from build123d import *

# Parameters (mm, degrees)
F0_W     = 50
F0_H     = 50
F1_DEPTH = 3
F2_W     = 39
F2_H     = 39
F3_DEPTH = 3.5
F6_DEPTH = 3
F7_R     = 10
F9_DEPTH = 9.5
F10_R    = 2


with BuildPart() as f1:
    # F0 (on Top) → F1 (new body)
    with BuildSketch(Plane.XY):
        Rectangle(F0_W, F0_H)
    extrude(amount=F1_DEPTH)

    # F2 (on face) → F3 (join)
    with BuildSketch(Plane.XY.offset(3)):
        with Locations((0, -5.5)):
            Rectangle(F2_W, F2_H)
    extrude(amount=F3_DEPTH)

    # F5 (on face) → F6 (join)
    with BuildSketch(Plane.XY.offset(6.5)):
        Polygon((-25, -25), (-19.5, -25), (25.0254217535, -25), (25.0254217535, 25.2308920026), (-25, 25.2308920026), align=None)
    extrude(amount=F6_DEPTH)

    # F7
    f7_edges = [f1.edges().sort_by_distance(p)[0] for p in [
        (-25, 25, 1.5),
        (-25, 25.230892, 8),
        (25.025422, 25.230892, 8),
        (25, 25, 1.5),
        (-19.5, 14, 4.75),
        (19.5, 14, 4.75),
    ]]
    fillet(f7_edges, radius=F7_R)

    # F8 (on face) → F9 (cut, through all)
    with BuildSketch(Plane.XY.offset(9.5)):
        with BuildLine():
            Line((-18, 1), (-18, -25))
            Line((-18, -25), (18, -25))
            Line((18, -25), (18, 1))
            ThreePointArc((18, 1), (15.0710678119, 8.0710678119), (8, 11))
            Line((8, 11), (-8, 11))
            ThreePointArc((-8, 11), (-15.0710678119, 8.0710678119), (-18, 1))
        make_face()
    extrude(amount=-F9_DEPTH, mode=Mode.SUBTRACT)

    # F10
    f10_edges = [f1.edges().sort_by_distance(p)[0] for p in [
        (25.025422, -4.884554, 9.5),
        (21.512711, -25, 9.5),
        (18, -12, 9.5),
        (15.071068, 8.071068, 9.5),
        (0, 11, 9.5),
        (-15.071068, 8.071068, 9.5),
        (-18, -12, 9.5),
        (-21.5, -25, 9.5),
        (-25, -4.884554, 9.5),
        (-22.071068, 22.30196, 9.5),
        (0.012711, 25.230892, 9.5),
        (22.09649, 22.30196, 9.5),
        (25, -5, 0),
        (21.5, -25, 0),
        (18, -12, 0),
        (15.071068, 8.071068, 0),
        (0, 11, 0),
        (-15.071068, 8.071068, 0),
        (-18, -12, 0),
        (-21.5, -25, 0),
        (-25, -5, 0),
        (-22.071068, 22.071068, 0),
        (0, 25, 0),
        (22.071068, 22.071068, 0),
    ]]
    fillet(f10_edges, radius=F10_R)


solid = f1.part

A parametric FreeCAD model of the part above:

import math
import FreeCAD as App
import Part
import Sketcher

V = App.Vector


def edges_at(feature, points):
    """Names of the edges that pass closest to the given points."""
    edges = feature.Shape.Edges
    near = lambda p: min(range(len(edges)), key=lambda i: edges[i].distToShape(Part.Vertex(*p))[0])
    return sorted({f"Edge{near(p) + 1}" for p in points})

doc = App.newDocument("Part")
body = doc.addObject("PartDesign::Body", "Body")

sketch1 = body.newObject("Sketcher::SketchObject", "Sketch")
sketch1.AttachmentSupport = (doc.getObject("XY_Plane"), [""])
sketch1.MapMode = "FlatFace"
sketch1.addGeometry(Part.LineSegment(V(-25, 25, 0), V(-25, -25, 0)), False)
sketch1.addGeometry(Part.LineSegment(V(-25, -25, 0), V(25, -25, 0)), False)
sketch1.addGeometry(Part.LineSegment(V(25, -25, 0), V(25, 25, 0)), False)
sketch1.addGeometry(Part.LineSegment(V(25, 25, 0), V(-25, 25, 0)), False)
sketch1.addConstraint(Sketcher.Constraint("Coincident", 0, 2, 1, 1))
sketch1.addConstraint(Sketcher.Constraint("Coincident", 1, 2, 2, 1))
sketch1.addConstraint(Sketcher.Constraint("Coincident", 2, 2, 3, 1))
sketch1.addConstraint(Sketcher.Constraint("Coincident", 3, 2, 0, 1))
sketch1.addConstraint(Sketcher.Constraint("Vertical", 0))
sketch1.addConstraint(Sketcher.Constraint("Horizontal", 1))
sketch1.addConstraint(Sketcher.Constraint("Vertical", 2))
sketch1.addConstraint(Sketcher.Constraint("Horizontal", 3))
sketch1.addConstraint(Sketcher.Constraint("Symmetric", 0, 2, 2, 2, -1, 1))
sketch1.addConstraint(Sketcher.Constraint("Equal", 3, 0))
sketch1.addConstraint(Sketcher.Constraint("DistanceX", 1, 1, 1, 2, 50.0))
pad1 = body.newObject("PartDesign::Pad", "Pad")
pad1.Profile = sketch1
pad1.Length = 3

sketch2 = body.newObject("Sketcher::SketchObject", "Sketch001")
sketch2.AttachmentSupport = (doc.getObject("XY_Plane"), [""])
sketch2.MapMode = "FlatFace"
sketch2.AttachmentOffset = App.Placement(V(0, 0, 3), App.Rotation())
sketch2.addGeometry(Part.LineSegment(V(-19.5, 14, 0), V(-19.5, -25, 0)), False)
sketch2.addGeometry(Part.LineSegment(V(-19.5, -25, 0), V(19.5, -25, 0)), False)
sketch2.addGeometry(Part.LineSegment(V(19.5, -25, 0), V(19.5, 14, 0)), False)
sketch2.addGeometry(Part.LineSegment(V(19.5, 14, 0), V(-19.5, 14, 0)), False)
sketch2.addConstraint(Sketcher.Constraint("Coincident", 0, 2, 1, 1))
sketch2.addConstraint(Sketcher.Constraint("Coincident", 1, 2, 2, 1))
sketch2.addConstraint(Sketcher.Constraint("Coincident", 2, 2, 3, 1))
sketch2.addConstraint(Sketcher.Constraint("Coincident", 3, 2, 0, 1))
sketch2.addConstraint(Sketcher.Constraint("Vertical", 0))
sketch2.addConstraint(Sketcher.Constraint("Horizontal", 1))
sketch2.addConstraint(Sketcher.Constraint("Vertical", 2))
sketch2.addConstraint(Sketcher.Constraint("Horizontal", 3))
sketch2.addConstraint(Sketcher.Constraint("Equal", 3, 0))
sketch2.addConstraint(Sketcher.Constraint("DistanceX", 1, 1, 1, 2, 39.0))
sketch2.addConstraint(Sketcher.Constraint("DistanceY", 0, 2, -1, 1, 25.0))
sketch2.addConstraint(Sketcher.Constraint("DistanceX", 0, 2, -1, 1, 19.5))
pad2 = body.newObject("PartDesign::Pad", "Pad001")
pad2.Profile = sketch2
pad2.Length = 3.5

sketch3 = body.newObject("Sketcher::SketchObject", "Sketch002")
sketch3.AttachmentSupport = (doc.getObject("XY_Plane"), [""])
sketch3.MapMode = "FlatFace"
sketch3.AttachmentOffset = App.Placement(V(0, 0, 6.5), App.Rotation())
sketch3.addGeometry(Part.LineSegment(V(-25, -25, 0), V(25.025422, -25, 0)), False)
sketch3.addGeometry(Part.LineSegment(V(25.025422, -25, 0), V(25.025422, 25.230892, 0)), False)
sketch3.addGeometry(Part.LineSegment(V(25.025422, 25.230892, 0), V(-25, 25.230892, 0)), False)
sketch3.addGeometry(Part.LineSegment(V(-25, 25.230892, 0), V(-25, -25, 0)), False)
sketch3.addConstraint(Sketcher.Constraint("Coincident", 0, 2, 1, 1))
sketch3.addConstraint(Sketcher.Constraint("Coincident", 1, 2, 2, 1))
sketch3.addConstraint(Sketcher.Constraint("Coincident", 2, 2, 3, 1))
sketch3.addConstraint(Sketcher.Constraint("Coincident", 3, 2, 0, 1))
sketch3.addConstraint(Sketcher.Constraint("Horizontal", 0))
sketch3.addConstraint(Sketcher.Constraint("Vertical", 1))
sketch3.addConstraint(Sketcher.Constraint("Horizontal", 2))
sketch3.addConstraint(Sketcher.Constraint("Vertical", 3))
sketch3.addConstraint(Sketcher.Constraint("DistanceY", 0, 2, -1, 1, 25.0))
sketch3.addConstraint(Sketcher.Constraint("DistanceX", 2, 2, -1, 1, 25.0))
sketch3.addConstraint(Sketcher.Constraint("DistanceX", 0, 1, 0, 2, 50.025422))
sketch3.addConstraint(Sketcher.Constraint("DistanceY", 1, 1, 1, 2, 50.230892))
pad3 = body.newObject("PartDesign::Pad", "Pad002")
pad3.Profile = sketch3
pad3.Length = 3
doc.recompute()

fillet = body.newObject("PartDesign::Fillet", "Fillet")
fillet.Base = (pad3, edges_at(pad3, [
    (-25, 25, 1.5),
    (-25, 25.231, 8),
    (25.025, 25.231, 8),
    (25, 25, 1.5),
    (-19.5, 14, 4.75),
    (19.5, 14, 4.75),
]))
fillet.Radius = 10

sketch4 = body.newObject("Sketcher::SketchObject", "Sketch003")
sketch4.AttachmentSupport = (doc.getObject("XY_Plane"), [""])
sketch4.MapMode = "FlatFace"
sketch4.AttachmentOffset = App.Placement(V(0, 0, 9.5), App.Rotation())
sketch4.addGeometry(Part.LineSegment(V(-18, 1, 0), V(-18, -25, 0)), False)
sketch4.addGeometry(Part.LineSegment(V(-18, -25, 0), V(18, -25, 0)), False)
sketch4.addGeometry(Part.LineSegment(V(18, -25, 0), V(18, 1, 0)), False)
sketch4.addGeometry(Part.ArcOfCircle(Part.Circle(V(8, 1, 0), V(0, 0, 1), 10), math.radians(0), math.radians(90)), False)
sketch4.addGeometry(Part.LineSegment(V(8, 11, 0), V(-8, 11, 0)), False)
sketch4.addGeometry(Part.ArcOfCircle(Part.Circle(V(-8, 1, 0), V(0, 0, 1), 10), math.radians(90), math.radians(180)), False)
sketch4.addConstraint(Sketcher.Constraint("Coincident", 0, 2, 1, 1))
sketch4.addConstraint(Sketcher.Constraint("Coincident", 1, 2, 2, 1))
sketch4.addConstraint(Sketcher.Constraint("Tangent", 2, 2, 3, 1))
sketch4.addConstraint(Sketcher.Constraint("Tangent", 3, 2, 4, 1))
sketch4.addConstraint(Sketcher.Constraint("Tangent", 4, 2, 5, 1))
sketch4.addConstraint(Sketcher.Constraint("Tangent", 5, 2, 0, 1))
sketch4.addConstraint(Sketcher.Constraint("Vertical", 0))
sketch4.addConstraint(Sketcher.Constraint("Horizontal", 1))
sketch4.addConstraint(Sketcher.Constraint("Vertical", 2))
sketch4.addConstraint(Sketcher.Constraint("Horizontal", 4))
sketch4.addConstraint(Sketcher.Constraint("Equal", 3, 5))
sketch4.addConstraint(Sketcher.Constraint("Radius", 3, 10.0))
sketch4.addConstraint(Sketcher.Constraint("DistanceX", 1, 1, 1, 2, 36.0))
sketch4.addConstraint(Sketcher.Constraint("DistanceY", 0, 2, 0, 1, 26.0))
sketch4.addConstraint(Sketcher.Constraint("DistanceX", -1, 1, 3, 3, 8.0))
sketch4.addConstraint(Sketcher.Constraint("DistanceY", -1, 1, 3, 3, 1.0))
pocket1 = body.newObject("PartDesign::Pocket", "Pocket")
pocket1.Profile = sketch4
pocket1.Type = "ThroughAll"
doc.recompute()

fillet2 = body.newObject("PartDesign::Fillet", "Fillet001")
fillet2.Base = (pocket1, edges_at(pocket1, [
    (25.025, -4.885, 9.5),
    (21.513, -25, 9.5),
    (18, -12, 9.5),
    (15.071, 8.071, 9.5),
    (0, 11, 9.5),
    (-15.071, 8.071, 9.5),
    (-18, -12, 9.5),
    (-21.5, -25, 9.5),
    (-25, -4.885, 9.5),
    (-22.071, 22.302, 9.5),
    (0.013, 25.231, 9.5),
    (22.096, 22.302, 9.5),
    (25, -5, 0),
    (21.5, -25, 0),
    (18, -12, 0),
    (15.071, 8.071, 0),
    (0, 11, 0),
    (-15.071, 8.071, 0),
    (-18, -12, 0),
    (-21.5, -25, 0),
    (-25, -5, 0),
    (-22.071, 22.071, 0),
    (0, 25, 0),
    (22.071, 22.071, 0),
]))
fillet2.Radius = 2

doc.recompute()
